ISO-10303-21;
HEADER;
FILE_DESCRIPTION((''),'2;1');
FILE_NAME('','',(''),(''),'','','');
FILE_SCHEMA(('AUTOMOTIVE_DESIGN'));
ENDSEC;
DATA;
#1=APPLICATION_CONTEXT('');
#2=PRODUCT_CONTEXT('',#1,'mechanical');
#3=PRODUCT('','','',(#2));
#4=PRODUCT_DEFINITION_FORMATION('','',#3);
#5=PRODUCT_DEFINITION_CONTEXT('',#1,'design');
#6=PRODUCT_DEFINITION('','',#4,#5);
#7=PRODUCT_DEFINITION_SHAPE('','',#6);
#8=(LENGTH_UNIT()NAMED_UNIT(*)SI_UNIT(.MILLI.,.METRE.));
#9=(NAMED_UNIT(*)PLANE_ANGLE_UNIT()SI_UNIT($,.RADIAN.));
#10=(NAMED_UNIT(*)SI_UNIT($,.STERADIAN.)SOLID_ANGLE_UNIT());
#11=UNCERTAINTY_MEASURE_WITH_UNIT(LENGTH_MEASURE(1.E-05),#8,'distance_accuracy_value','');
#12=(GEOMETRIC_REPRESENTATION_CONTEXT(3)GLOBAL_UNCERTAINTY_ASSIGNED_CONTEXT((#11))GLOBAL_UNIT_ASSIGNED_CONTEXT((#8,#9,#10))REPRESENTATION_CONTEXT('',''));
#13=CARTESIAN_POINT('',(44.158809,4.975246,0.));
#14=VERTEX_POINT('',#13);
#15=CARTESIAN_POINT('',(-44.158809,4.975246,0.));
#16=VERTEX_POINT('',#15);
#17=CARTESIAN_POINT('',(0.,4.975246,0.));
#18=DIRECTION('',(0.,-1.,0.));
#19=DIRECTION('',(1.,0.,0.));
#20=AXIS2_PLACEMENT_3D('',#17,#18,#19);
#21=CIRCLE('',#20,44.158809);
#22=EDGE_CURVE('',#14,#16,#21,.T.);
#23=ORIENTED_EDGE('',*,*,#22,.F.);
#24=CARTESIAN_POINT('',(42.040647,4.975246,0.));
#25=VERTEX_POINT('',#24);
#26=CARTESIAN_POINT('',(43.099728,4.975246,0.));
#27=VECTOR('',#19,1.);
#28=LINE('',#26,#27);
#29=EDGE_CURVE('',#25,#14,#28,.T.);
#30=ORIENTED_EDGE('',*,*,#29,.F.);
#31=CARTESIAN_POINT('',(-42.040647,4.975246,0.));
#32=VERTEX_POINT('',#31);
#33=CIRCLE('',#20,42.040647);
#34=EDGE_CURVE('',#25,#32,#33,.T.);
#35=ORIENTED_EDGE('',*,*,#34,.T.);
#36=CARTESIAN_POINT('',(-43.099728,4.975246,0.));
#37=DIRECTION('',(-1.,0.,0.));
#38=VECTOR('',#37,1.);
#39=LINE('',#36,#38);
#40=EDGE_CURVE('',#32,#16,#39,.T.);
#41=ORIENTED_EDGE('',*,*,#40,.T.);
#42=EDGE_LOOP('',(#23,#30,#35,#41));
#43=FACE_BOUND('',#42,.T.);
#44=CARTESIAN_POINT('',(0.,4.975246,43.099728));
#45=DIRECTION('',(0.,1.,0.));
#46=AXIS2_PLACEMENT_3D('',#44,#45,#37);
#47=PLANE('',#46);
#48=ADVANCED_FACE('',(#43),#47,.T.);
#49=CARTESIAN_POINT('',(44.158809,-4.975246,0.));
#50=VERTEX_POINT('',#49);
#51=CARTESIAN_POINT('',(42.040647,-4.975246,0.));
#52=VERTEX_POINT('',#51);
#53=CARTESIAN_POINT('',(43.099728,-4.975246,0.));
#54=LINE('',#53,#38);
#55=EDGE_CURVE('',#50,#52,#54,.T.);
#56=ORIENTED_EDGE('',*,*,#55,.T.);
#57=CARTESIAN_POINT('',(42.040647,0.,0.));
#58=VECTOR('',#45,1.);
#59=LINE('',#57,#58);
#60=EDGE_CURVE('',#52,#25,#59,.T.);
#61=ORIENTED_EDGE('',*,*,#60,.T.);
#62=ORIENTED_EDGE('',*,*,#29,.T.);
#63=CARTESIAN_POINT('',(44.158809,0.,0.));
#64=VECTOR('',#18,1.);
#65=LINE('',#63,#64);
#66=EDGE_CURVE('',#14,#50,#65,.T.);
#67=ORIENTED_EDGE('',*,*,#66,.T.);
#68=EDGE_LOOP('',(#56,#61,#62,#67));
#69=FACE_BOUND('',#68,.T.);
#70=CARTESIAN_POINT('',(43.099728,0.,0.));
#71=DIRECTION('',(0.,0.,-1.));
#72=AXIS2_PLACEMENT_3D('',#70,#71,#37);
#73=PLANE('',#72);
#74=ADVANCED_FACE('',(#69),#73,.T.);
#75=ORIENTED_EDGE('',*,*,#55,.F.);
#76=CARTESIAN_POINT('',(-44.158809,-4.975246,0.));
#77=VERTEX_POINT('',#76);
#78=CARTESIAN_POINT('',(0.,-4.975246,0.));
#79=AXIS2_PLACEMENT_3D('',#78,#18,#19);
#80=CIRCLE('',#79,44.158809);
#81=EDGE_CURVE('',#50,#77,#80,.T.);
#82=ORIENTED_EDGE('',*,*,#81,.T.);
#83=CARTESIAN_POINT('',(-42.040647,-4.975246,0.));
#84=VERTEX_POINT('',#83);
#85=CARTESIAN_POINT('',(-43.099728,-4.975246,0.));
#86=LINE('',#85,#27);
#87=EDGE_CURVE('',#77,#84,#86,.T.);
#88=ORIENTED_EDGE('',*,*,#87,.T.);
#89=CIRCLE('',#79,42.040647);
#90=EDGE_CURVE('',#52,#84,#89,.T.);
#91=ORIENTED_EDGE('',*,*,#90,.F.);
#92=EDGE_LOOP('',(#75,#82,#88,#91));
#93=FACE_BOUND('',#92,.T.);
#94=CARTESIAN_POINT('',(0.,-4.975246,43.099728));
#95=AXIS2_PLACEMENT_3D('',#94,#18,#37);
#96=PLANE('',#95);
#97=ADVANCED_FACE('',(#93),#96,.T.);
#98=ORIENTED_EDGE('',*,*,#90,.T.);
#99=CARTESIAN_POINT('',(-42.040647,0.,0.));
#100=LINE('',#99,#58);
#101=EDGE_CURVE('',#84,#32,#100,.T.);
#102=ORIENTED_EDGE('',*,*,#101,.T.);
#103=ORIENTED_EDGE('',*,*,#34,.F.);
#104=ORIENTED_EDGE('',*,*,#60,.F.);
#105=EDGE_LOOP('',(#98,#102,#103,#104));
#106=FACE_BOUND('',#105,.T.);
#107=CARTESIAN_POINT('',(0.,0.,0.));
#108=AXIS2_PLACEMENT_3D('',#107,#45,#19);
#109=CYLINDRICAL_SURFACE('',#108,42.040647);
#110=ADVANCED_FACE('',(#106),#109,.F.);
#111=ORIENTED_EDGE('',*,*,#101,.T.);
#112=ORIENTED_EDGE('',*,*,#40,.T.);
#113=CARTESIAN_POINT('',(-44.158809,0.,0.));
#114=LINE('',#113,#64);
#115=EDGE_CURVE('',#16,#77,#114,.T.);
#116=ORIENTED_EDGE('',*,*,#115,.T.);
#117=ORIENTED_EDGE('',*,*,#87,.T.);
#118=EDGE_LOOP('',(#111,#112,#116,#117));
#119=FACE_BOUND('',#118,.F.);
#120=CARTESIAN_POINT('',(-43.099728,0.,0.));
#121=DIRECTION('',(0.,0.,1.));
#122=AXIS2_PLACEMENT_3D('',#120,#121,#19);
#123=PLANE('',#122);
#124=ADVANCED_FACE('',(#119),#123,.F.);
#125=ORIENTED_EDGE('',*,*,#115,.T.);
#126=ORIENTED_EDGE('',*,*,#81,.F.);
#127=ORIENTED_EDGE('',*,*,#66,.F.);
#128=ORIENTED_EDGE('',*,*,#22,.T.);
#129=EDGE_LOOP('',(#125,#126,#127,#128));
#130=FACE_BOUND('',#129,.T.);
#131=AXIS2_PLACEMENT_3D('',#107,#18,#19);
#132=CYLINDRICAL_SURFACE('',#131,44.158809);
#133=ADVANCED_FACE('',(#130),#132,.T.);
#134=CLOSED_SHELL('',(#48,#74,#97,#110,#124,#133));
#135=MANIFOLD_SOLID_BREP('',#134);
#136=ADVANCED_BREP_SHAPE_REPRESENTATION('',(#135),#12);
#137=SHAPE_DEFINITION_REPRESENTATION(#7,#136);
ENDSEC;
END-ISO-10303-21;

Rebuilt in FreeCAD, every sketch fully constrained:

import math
import FreeCAD as App
import Part
import Sketcher
from FreeCAD import Vector
Q = App.Units.Quantity


def add_polygon(sketch, points):
    """Adds a closed chain of lines whose ends are joined by coincident constraints."""
    first, n = sketch.GeometryCount, len(points)
    for a, b in zip(points, points[1:] + points[:1]):
        sketch.addGeometry(Part.LineSegment(App.Vector(*a, 0), App.Vector(*b, 0)), False)
    for i in range(n):
        sketch.addConstraint(Sketcher.Constraint("Coincident", first + i, 2, first + (i + 1) % n, 1))

doc = App.newDocument("Part")
body = doc.addObject("PartDesign::Body", "Body")

sketch1 = body.newObject("Sketcher::SketchObject", "Sketch")
sketch1.AttachmentSupport = (doc.getObject("XY_Plane"), [""])
sketch1.MapMode = "FlatFace"
add_polygon(sketch1, [(-44.2, 5), (-44.2, -5), (-42, -5), (-42, 5)])
sketch1.addConstraint([
    Sketcher.Constraint("Vertical", 0),
    Sketcher.Constraint("Horizontal", 1),
    Sketcher.Constraint("Vertical", 2),
    Sketcher.Constraint("Horizontal", 3),
    Sketcher.Constraint("DistanceX", 1, 1, 1, 2, Q("2.118163 mm")),
    Sketcher.Constraint("DistanceY", 0, 2, 0, 1, Q("9.950492 mm")),
    Sketcher.Constraint("DistanceX", 0, 2, -1, 1, Q("44.158809 mm")),
    Sketcher.Constraint("DistanceY", 0, 2, -1, 1, Q("4.975246 mm")),
])

sketch2 = body.newObject("Sketcher::SketchObject", "Sketch001")
sketch2.AttachmentSupport = (doc.getObject("XZ_Plane"), [""])
sketch2.MapMode = "FlatFace"
sketch2.addGeometry(Part.ArcOfCircle(Part.Circle(Vector(0, 0, 0), Vector(0, 0, 1), 43), math.radians(0), math.radians(180)), False)
sketch2.addConstraint([
    Sketcher.Constraint("Coincident", 0, 3, -1, 1),
    Sketcher.Constraint("PointOnObject", 0, 1, -1),
    Sketcher.Constraint("PointOnObject", 0, 2, -1),
    Sketcher.Constraint("Radius", 0, Q("43.178614 mm")),
])
doc.recompute()

additivepipe = body.newObject("PartDesign::AdditivePipe", "AdditivePipe")
additivepipe.Profile = sketch1
additivepipe.Spine = (sketch2, ["Edge1"])

doc.recompute()
